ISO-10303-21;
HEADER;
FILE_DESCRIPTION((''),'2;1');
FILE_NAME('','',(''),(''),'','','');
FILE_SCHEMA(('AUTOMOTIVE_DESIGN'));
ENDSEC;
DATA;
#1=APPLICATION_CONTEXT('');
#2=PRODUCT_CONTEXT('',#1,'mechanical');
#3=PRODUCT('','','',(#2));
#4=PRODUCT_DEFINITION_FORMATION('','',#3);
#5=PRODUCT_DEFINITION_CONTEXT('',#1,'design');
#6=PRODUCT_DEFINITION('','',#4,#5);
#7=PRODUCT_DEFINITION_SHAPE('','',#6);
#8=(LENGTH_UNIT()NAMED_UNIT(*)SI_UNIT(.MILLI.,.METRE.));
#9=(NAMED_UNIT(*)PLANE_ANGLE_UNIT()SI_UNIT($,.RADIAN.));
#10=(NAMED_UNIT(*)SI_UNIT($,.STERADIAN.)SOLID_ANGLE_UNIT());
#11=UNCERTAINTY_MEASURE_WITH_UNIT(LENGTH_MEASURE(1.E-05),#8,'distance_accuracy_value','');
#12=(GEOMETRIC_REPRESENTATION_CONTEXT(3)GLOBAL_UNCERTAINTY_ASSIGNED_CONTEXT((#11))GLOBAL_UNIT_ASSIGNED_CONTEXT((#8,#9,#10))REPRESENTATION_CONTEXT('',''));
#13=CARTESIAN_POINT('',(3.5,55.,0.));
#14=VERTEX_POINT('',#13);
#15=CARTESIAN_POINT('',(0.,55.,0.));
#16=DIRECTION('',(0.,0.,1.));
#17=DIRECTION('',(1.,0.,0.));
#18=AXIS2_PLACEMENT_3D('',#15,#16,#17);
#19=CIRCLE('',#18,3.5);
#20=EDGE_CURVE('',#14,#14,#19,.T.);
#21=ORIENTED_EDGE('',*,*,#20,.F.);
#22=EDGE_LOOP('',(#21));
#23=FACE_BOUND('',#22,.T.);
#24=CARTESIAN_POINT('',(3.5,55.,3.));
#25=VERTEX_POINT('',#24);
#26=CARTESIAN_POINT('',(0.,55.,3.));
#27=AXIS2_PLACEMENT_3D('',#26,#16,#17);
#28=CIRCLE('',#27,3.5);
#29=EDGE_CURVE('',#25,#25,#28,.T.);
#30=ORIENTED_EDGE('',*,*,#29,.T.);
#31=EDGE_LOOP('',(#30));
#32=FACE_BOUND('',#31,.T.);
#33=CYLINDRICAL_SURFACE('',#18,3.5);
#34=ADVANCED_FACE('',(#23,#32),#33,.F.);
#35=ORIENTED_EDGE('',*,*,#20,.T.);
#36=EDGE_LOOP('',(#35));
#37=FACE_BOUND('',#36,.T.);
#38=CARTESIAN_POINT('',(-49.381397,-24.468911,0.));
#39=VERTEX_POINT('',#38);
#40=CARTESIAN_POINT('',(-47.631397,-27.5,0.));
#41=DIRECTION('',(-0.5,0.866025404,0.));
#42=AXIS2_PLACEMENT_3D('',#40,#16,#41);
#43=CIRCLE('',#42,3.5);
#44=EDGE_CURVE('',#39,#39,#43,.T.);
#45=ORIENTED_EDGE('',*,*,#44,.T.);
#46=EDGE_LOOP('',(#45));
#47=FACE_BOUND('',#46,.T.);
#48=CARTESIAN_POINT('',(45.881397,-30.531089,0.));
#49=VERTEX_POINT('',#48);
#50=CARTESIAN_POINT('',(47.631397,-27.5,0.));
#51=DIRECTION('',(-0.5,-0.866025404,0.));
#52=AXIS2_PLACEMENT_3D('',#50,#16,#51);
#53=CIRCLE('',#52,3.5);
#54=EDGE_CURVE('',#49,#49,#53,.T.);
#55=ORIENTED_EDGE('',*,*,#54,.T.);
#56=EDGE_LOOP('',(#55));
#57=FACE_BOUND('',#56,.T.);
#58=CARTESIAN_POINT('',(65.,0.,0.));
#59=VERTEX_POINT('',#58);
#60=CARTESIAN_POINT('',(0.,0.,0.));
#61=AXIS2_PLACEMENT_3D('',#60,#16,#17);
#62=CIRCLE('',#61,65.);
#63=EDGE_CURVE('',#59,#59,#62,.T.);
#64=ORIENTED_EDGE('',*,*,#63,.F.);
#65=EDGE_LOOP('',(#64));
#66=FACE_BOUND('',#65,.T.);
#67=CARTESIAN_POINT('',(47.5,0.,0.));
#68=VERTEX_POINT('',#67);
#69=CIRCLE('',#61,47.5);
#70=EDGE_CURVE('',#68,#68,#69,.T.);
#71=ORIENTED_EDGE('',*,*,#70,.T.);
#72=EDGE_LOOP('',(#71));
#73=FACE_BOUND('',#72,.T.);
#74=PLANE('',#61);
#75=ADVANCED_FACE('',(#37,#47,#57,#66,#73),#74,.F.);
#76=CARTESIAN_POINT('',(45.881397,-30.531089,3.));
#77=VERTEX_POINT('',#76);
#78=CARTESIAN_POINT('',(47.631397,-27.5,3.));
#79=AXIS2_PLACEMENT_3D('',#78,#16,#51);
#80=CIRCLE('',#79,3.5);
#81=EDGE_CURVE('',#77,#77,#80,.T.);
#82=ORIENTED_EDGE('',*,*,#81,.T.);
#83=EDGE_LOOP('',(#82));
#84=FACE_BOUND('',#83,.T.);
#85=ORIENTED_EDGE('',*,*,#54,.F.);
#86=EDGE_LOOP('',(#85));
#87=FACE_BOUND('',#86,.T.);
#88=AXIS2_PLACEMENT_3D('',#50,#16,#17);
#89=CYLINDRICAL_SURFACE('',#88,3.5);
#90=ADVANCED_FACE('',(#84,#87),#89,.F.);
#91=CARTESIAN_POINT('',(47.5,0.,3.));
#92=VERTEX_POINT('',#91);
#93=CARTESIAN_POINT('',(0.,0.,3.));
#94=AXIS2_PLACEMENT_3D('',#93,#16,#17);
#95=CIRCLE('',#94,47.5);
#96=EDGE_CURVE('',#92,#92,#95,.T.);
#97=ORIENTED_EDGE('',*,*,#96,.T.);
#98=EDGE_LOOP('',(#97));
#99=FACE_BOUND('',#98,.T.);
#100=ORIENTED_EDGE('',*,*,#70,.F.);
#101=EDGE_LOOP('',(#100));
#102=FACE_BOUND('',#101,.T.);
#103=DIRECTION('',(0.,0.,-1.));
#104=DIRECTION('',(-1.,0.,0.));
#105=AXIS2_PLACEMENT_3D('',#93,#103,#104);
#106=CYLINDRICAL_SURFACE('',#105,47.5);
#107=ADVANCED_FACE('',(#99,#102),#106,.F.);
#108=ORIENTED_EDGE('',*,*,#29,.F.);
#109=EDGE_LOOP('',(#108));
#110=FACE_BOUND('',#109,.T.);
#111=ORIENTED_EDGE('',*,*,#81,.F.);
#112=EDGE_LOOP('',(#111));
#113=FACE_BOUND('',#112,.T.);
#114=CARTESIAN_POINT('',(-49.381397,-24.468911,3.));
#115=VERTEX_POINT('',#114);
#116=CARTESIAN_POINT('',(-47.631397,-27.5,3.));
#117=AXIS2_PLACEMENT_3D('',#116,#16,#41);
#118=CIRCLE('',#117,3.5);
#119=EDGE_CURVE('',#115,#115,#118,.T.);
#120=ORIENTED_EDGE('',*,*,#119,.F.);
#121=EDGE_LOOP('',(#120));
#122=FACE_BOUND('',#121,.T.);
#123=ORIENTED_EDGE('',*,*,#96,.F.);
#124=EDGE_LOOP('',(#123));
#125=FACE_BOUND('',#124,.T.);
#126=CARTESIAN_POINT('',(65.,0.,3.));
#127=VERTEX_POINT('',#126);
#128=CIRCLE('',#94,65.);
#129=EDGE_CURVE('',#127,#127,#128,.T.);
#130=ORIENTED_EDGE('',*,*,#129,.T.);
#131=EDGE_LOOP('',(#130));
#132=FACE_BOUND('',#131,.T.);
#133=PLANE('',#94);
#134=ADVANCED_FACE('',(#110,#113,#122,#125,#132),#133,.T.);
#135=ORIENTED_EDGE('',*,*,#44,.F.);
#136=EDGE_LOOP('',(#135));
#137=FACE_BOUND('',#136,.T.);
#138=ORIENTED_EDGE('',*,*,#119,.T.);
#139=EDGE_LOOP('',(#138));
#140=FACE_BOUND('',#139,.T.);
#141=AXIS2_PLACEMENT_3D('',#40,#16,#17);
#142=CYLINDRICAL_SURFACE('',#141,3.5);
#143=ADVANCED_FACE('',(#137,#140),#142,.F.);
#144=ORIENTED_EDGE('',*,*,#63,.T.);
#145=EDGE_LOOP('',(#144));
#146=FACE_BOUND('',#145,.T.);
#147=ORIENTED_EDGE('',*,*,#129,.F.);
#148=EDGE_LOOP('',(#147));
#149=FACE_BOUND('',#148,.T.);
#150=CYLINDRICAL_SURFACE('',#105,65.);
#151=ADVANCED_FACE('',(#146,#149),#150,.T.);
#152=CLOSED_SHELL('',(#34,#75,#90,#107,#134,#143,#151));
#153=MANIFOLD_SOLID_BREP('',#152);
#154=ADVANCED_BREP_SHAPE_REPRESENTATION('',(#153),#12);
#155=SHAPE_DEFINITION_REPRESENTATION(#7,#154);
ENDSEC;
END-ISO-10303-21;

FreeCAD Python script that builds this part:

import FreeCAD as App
import Part
import Sketcher
Q = App.Units.Quantity

doc = App.newDocument("Part")
body = doc.addObject("PartDesign::Body", "Body")

# Sketch on XY plane
sketch1 = doc.addObject("Sketcher::SketchObject", "Sketch")
body.addObject(sketch1)
sketch1.AttachmentSupport = (doc.XY_Plane, [""])
sketch1.MapMode = "FlatFace"
sketch1.addGeometry([
    Part.Circle(App.Vector(0, 0, 0), App.Vector(0, 0, 1), 65),
    Part.Circle(App.Vector(0, 0, 0), App.Vector(0, 0, 1), 48),
], False)
sketch1.addConstraint([
    Sketcher.Constraint("Coincident", 0, 3, -1, 1),
    Sketcher.Constraint("Coincident", 1, 3, -1, 1),
    Sketcher.Constraint("Diameter", 0, Q("130 mm")),
    Sketcher.Constraint("Diameter", 1, Q("95 mm")),
])
pad1 = doc.addObject("PartDesign::Pad", "Pad")
body.addObject(pad1)
pad1.Profile = sketch1
pad1.Length = 3

# Sketch on XY plane
sketch2 = doc.addObject("Sketcher::SketchObject", "Sketch001")
body.addObject(sketch2)
sketch2.AttachmentSupport = (doc.XY_Plane, [""])
sketch2.MapMode = "FlatFace"
sketch2.AttachmentOffset = App.Placement(App.Vector(0, 0, 3), App.Rotation())
sketch2.addGeometry(Part.Circle(App.Vector(0, 55, 0), App.Vector(0, 0, 1), 3.5), False)
sketch2.addConstraint([
    Sketcher.Constraint("PointOnObject", 0, 3, -2),
    Sketcher.Constraint("Diameter", 0, Q("7 mm")),
    Sketcher.Constraint("DistanceY", -1, 1, 0, 3, Q("55 mm")),
])
pocket1 = doc.addObject("PartDesign::Pocket", "Pocket")
body.addObject(pocket1)
pocket1.Profile = sketch2
pocket1.Length = 3
doc.recompute()

polarpattern = doc.addObject("PartDesign::PolarPattern", "PolarPattern")
body.addObject(polarpattern)
polarpattern.Originals = [pocket1]
polarpattern.Axis = (doc.Z_Axis, [""])
polarpattern.Angle = 360
polarpattern.Occurrences = 3
body.Tip = polarpattern

doc.recompute()
